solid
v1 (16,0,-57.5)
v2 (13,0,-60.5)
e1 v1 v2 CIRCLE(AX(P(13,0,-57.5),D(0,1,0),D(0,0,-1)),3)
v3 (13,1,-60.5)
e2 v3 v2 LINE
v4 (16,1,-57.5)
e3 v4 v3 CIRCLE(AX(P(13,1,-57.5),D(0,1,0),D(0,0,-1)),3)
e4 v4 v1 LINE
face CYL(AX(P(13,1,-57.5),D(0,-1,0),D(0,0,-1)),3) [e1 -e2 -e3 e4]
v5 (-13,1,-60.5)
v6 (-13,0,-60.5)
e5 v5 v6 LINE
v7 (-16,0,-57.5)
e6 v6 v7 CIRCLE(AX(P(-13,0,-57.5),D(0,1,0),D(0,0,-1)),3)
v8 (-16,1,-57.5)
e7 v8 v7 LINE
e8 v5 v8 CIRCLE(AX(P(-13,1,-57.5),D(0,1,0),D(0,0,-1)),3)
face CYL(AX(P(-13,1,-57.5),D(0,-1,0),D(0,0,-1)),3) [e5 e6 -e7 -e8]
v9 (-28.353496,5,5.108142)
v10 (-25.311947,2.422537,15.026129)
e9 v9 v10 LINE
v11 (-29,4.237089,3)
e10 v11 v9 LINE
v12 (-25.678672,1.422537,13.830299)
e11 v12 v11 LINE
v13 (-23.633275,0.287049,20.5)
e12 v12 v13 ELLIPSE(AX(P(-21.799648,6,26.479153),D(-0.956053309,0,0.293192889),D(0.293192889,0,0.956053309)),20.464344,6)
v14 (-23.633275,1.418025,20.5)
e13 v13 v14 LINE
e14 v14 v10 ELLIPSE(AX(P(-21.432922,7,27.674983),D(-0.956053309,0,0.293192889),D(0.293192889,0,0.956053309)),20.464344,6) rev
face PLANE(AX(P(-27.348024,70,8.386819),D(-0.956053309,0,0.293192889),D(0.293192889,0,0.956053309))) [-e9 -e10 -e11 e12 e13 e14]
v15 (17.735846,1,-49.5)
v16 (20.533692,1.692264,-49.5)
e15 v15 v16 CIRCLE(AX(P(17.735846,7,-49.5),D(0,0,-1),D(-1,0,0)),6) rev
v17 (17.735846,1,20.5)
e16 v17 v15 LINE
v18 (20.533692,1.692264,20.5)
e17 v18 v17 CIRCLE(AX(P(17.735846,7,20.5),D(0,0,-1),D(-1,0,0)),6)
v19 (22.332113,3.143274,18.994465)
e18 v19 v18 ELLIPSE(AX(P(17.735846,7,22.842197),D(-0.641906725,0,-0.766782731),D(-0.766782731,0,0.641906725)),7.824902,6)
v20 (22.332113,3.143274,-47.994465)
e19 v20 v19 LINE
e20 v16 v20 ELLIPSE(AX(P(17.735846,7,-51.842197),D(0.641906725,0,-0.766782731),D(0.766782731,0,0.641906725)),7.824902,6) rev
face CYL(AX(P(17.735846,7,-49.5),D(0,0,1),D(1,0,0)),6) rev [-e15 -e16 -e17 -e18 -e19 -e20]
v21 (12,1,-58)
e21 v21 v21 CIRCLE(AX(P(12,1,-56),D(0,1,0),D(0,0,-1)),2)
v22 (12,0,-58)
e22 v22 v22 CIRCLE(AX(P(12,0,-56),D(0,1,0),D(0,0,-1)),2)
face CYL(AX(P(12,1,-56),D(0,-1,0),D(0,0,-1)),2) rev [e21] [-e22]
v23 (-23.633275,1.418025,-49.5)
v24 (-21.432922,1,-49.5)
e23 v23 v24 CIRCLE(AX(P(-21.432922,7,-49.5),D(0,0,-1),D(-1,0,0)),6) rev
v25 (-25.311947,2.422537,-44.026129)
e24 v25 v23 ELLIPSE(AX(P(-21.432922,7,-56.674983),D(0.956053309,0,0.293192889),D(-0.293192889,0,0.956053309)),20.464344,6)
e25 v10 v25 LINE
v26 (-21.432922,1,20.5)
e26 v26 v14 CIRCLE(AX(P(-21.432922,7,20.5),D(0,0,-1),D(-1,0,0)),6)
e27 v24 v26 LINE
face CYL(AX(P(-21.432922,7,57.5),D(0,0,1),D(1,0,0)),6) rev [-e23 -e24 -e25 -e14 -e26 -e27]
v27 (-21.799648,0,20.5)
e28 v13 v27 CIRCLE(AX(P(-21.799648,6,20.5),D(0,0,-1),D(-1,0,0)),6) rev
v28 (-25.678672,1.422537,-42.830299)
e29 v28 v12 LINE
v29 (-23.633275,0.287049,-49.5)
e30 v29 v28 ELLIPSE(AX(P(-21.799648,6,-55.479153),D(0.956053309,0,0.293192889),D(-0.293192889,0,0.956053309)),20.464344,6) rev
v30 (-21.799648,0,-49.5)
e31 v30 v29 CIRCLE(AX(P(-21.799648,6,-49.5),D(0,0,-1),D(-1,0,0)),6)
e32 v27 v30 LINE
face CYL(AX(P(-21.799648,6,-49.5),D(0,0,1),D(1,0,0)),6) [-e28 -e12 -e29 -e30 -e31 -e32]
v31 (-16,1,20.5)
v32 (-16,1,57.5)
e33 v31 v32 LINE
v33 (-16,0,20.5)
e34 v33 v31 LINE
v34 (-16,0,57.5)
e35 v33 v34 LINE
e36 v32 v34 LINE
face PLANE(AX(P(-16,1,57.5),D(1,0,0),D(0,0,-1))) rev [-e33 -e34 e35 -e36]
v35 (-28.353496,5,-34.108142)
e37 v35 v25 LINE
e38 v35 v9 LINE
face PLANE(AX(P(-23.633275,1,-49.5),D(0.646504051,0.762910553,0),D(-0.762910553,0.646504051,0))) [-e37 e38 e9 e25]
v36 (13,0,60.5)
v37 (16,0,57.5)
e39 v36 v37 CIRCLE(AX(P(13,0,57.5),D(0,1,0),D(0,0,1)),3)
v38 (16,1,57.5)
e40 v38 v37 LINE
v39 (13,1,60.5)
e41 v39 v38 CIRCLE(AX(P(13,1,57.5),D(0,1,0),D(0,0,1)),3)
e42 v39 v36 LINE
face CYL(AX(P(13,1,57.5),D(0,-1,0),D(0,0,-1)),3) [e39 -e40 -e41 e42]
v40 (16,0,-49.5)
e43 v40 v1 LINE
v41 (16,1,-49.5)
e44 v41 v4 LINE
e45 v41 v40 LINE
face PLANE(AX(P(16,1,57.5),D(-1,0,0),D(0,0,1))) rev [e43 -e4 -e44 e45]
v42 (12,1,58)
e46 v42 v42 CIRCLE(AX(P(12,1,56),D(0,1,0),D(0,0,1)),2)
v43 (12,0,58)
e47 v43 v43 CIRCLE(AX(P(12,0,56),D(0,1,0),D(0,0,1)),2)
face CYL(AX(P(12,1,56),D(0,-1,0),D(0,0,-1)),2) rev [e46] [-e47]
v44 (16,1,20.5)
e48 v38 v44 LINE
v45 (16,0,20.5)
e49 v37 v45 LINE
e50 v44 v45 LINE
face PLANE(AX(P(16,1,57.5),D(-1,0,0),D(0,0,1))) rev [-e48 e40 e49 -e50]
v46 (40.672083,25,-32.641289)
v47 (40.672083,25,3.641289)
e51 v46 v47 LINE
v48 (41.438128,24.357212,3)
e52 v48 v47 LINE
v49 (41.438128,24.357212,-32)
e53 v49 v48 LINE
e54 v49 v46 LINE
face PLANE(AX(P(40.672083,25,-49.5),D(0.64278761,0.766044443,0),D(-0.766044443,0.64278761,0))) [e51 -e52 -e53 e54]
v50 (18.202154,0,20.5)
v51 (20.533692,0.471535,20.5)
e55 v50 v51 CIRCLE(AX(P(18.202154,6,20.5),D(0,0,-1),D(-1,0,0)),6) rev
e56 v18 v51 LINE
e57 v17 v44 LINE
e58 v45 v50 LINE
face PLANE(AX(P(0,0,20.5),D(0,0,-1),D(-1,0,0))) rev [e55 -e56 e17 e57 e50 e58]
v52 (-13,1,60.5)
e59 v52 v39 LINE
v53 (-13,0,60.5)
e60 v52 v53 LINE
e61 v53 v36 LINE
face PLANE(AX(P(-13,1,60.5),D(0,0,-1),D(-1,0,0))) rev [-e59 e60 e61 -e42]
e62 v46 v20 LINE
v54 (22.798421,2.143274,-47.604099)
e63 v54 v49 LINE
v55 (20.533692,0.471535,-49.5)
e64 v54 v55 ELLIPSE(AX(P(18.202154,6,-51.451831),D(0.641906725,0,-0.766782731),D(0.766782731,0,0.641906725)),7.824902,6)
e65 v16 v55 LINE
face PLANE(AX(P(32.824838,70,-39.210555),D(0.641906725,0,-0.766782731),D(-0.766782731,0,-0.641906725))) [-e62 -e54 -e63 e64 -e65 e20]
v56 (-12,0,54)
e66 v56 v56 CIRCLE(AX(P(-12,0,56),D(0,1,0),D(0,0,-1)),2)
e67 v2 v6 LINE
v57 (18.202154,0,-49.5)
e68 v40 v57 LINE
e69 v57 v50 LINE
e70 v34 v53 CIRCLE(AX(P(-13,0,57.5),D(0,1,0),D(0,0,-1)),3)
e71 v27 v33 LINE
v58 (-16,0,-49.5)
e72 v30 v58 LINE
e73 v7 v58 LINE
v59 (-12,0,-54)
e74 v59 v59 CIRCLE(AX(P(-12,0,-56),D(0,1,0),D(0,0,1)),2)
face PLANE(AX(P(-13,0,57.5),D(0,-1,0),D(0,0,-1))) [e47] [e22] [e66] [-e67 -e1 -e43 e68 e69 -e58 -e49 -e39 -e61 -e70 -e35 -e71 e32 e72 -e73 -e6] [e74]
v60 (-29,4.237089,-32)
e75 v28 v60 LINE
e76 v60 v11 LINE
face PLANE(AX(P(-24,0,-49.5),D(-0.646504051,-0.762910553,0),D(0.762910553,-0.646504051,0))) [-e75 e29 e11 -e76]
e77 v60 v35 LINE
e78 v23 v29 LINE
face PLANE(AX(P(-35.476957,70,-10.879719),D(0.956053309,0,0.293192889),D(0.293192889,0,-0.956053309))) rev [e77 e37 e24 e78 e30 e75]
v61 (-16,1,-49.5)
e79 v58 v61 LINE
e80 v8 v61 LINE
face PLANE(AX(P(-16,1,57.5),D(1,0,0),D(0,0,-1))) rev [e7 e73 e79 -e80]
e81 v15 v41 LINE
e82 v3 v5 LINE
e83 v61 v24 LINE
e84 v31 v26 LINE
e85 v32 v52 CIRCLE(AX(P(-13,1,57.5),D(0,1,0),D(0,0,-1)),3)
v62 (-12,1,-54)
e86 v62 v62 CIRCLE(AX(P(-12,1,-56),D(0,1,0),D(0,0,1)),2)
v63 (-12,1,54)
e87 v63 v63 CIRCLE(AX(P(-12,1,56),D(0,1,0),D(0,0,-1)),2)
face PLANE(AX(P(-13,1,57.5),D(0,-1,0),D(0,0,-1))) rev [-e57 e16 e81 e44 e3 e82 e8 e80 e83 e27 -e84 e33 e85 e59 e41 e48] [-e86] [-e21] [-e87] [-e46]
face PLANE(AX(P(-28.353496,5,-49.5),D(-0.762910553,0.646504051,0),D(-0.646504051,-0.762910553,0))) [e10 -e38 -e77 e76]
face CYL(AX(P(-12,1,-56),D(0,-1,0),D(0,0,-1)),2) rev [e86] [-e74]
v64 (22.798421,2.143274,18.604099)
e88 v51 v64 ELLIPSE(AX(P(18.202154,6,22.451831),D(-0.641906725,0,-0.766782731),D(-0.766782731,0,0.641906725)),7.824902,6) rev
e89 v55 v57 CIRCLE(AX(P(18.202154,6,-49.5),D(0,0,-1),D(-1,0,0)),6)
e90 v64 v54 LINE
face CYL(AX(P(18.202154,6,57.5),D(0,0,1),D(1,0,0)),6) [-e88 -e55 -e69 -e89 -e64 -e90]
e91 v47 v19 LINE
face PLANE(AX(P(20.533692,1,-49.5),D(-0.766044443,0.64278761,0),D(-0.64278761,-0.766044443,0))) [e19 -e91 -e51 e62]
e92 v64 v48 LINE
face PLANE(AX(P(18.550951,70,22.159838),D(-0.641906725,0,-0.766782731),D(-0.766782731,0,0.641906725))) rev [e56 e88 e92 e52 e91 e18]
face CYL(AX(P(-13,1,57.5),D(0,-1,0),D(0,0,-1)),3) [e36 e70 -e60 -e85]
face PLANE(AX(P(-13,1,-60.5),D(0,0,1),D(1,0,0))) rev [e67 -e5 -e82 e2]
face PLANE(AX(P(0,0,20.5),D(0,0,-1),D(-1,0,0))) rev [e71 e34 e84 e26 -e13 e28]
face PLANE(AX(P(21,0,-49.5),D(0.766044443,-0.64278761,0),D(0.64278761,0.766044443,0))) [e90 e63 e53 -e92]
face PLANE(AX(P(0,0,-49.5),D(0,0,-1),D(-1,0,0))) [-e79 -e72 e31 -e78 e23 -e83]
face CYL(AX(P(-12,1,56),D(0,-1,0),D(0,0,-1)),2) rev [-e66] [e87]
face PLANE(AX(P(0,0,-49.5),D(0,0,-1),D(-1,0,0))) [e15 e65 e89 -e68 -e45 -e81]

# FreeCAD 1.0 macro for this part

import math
import FreeCAD as App
import Part
import Sketcher
Q = App.Units.Quantity


def edges_at(feature, points):
    """Names of the edges that pass closest to the given points."""
    edges = feature.Shape.Edges
    near = lambda p: min(range(len(edges)), key=lambda i: edges[i].distToShape(Part.Vertex(*p))[0])
    return sorted({f"Edge{near(p) + 1}" for p in points})


def add_polygon(sketch, points):
    """Adds a closed chain of lines whose ends are joined by coincident constraints."""
    first, n = sketch.GeometryCount, len(points)
    for a, b in zip(points, points[1:] + points[:1]):
        sketch.addGeometry(Part.LineSegment(App.Vector(*a, 0), App.Vector(*b, 0)), False)
    for i in range(n):
        sketch.addConstraint(Sketcher.Constraint("Coincident", first + i, 2, first + (i + 1) % n, 1))

doc = App.newDocument("Part")
params = doc.addObject("Spreadsheet::Sheet", "Params")
for row, (alias, value) in enumerate([
    ("sketch1_diameter", "4 mm"),
    ("sketch1_radius", "3 mm"),
    ("sketch1_width", "26 mm"),
    ("sketch1_height", "115 mm"),
    ("pad1_length", "1 mm"),
    ("sketch2_width", "45 mm"),
    ("sketch2_length", "1 mm"),
    ("pad2_length", "70 mm"),
    ("sketch3_height", "17.5 mm"),
    ("pocket1_length", "70 mm"),
    ("fillet_radius", "6 mm"),
    ("fillet2_radius", "6 mm"),
], start=1):
    params.set(f"A{row}", alias)
    params.set(f"B{row}", "=" + value)
    params.setAlias(f"B{row}", alias)

body = doc.addObject("PartDesign::Body", "Body")

# Sketch on XZ plane
sketch1 = body.newObject("Sketcher::SketchObject", "Sketch")
sketch1.AttachmentSupport = (doc.getObject("XZ_Plane"), [""])
sketch1.MapMode = "FlatFace"
sketch1.addGeometry([
    Part.LineSegment(App.Vector(-13, 60.5, 0), App.Vector(13, 60.5, 0)),  # 0
    Part.ArcOfCircle(Part.Circle(App.Vector(13, 57.5, 0), App.Vector(0, 0, 1), 3), math.radians(0), math.radians(90)),  # 1
    Part.LineSegment(App.Vector(16, 57.5, 0), App.Vector(16, -57.5, 0)),  # 2
    Part.ArcOfCircle(Part.Circle(App.Vector(13, -57.5, 0), App.Vector(0, 0, 1), 3), math.radians(-90), math.radians(0)),  # 3
    Part.LineSegment(App.Vector(13, -60.5, 0), App.Vector(-13, -60.5, 0)),  # 4
    Part.ArcOfCircle(Part.Circle(App.Vector(-13, -57.5, 0), App.Vector(0, 0, 1), 3), math.radians(180), math.radians(270)),  # 5
    Part.LineSegment(App.Vector(-16, -57.5, 0), App.Vector(-16, 57.5, 0)),  # 6
    Part.ArcOfCircle(Part.Circle(App.Vector(-13, 57.5, 0), App.Vector(0, 0, 1), 3), math.radians(90), math.radians(180)),  # 7
    Part.Circle(App.Vector(-12, 56, 0), App.Vector(0, 0, 1), 2),  # 8
    Part.Circle(App.Vector(12, 56, 0), App.Vector(0, 0, 1), 2),  # 9
    Part.Circle(App.Vector(-12, -56, 0), App.Vector(0, 0, 1), 2),  # 10
    Part.Circle(App.Vector(12, -56, 0), App.Vector(0, 0, 1), 2),  # 11
], False)
sketch1.addConstraint([
    Sketcher.Constraint("Tangent", 0, 2, 1, 2),
    Sketcher.Constraint("Tangent", 1, 1, 2, 1),
    Sketcher.Constraint("Tangent", 2, 2, 3, 2),
    Sketcher.Constraint("Tangent", 3, 1, 4, 1),
    Sketcher.Constraint("Tangent", 4, 2, 5, 2),
    Sketcher.Constraint("Tangent", 5, 1, 6, 1),
    Sketcher.Constraint("Tangent", 6, 2, 7, 2),
    Sketcher.Constraint("Tangent", 7, 1, 0, 1),
    Sketcher.Constraint("Horizontal", 0),
    Sketcher.Constraint("Vertical", 2),
    Sketcher.Constraint("Horizontal", 4),
    Sketcher.Constraint("Vertical", 6),
    Sketcher.Constraint("Equal", 1, 3),
    Sketcher.Constraint("Equal", 3, 5),
    Sketcher.Constraint("Equal", 5, 7),
    Sketcher.Constraint("Equal", 8, 9),
    Sketcher.Constraint("Equal", 9, 10),
    Sketcher.Constraint("Equal", 10, 11),
    Sketcher.Constraint("Symmetric", 1, 3, 5, 3, -1, 1),
    Sketcher.Constraint("Symmetric", 9, 3, 10, 3, -1, 1),
    Sketcher.Constraint("Symmetric", 8, 3, 11, 3, -1, 1),
    Sketcher.Constraint("Symmetric", 8, 3, 9, 3, -2),
    Sketcher.Constraint("Diameter", 8, Q("4 mm")),
    Sketcher.Constraint("Radius", 1, Q("3 mm")),
    Sketcher.Constraint("DistanceX", 0, 1, 0, 2, Q("26 mm")),
    Sketcher.Constraint("DistanceY", 2, 2, 2, 1, Q("115 mm")),
    Sketcher.Constraint("DistanceX", 8, 3, -1, 1, Q("12 mm")),
    Sketcher.Constraint("DistanceY", -1, 1, 8, 3, Q("56 mm")),
])
sketch1.setExpression("Constraints[22]", "Params.sketch1_diameter")
sketch1.setExpression("Constraints[23]", "Params.sketch1_radius")
sketch1.setExpression("Constraints[24]", "Params.sketch1_width")
sketch1.setExpression("Constraints[25]", "Params.sketch1_height")
pad1 = body.newObject("PartDesign::Pad", "Pad")
pad1.Profile = sketch1
pad1.setExpression("Length", "Params.pad1_length")
pad1.Reversed = True

# Sketch on XY plane
sketch2 = body.newObject("Sketcher::SketchObject", "Sketch001")
sketch2.AttachmentSupport = (doc.getObject("XY_Plane"), [""])
sketch2.MapMode = "FlatFace"
sketch2.AttachmentOffset = App.Placement(App.Vector(0, 0, 20.5), App.Rotation())
add_polygon(sketch2, [(20.533692, 1), (-23.633275, 1), (-28.353496, 5), (-29, 4.237089), (-24, 0), (21, 0), (41.438128, 24.357212), (40.672083, 25)])  # lines 0-7
sketch2.addConstraint([
    Sketcher.Constraint("Horizontal", 0),
    Sketcher.Constraint("Horizontal", 4),
    Sketcher.Constraint("PointOnObject", 3, 2, -1),
    Sketcher.Constraint("Perpendicular", 1, 2),
    Sketcher.Constraint("Perpendicular", 2, 3),
    Sketcher.Constraint("Perpendicular", 5, 6),
    Sketcher.Constraint("Perpendicular", 6, 7),
    Sketcher.Constraint("Equal", 2, 6),
    Sketcher.Constraint("DistanceX", 4, 1, 4, 2, Q("45 mm")),
    Sketcher.Constraint("Angle", 5, Q("50 deg")),
    Sketcher.Constraint("Distance", 2, Q("1 mm")),
    Sketcher.Constraint("DistanceY", -1, 1, 0, 2, Q("1 mm")),
    Sketcher.Constraint("DistanceY", -1, 1, 1, 2, Q("5 mm")),
    Sketcher.Constraint("DistanceX", 2, 2, -1, 1, Q("29 mm")),
    Sketcher.Constraint("DistanceX", 3, 2, -1, 1, Q("24 mm")),
    Sketcher.Constraint("DistanceY", -1, 1, 6, 2, Q("25 mm")),
])
sketch2.setExpression("Constraints[16]", "Params.sketch2_width")
sketch2.setExpression("Constraints[18]", "Params.sketch2_length")
pad2 = body.newObject("PartDesign::Pad", "Pad001")
pad2.Profile = sketch2
pad2.setExpression("Length", "Params.pad2_length")
pad2.Reversed = True

# Sketch on XZ plane
sketch3 = body.newObject("Sketcher::SketchObject", "Sketch002")
sketch3.AttachmentSupport = (doc.getObject("XZ_Plane"), [""])
sketch3.MapMode = "FlatFace"
add_polygon(sketch3, [(20.533692, 20.5), (41.438128, 3), (41.438128, 20.5)])  # lines 0-2
add_polygon(sketch3, [(41.438128, -32), (20.533692, -49.5), (41.438128, -49.5)])  # lines 3-5
add_polygon(sketch3, [(-23.633275, -49.5), (-29, -32), (-29, -49.5)])  # lines 6-8
add_polygon(sketch3, [(-23.633275, 20.5), (-29, 20.5), (-29, 3)])  # lines 9-11
sketch3.addConstraint([
    Sketcher.Constraint("Vertical", 1),
    Sketcher.Constraint("Horizontal", 2),
    Sketcher.Constraint("Horizontal", 4),
    Sketcher.Constraint("Vertical", 5),
    Sketcher.Constraint("Vertical", 7),
    Sketcher.Constraint("Horizontal", 8),
    Sketcher.Constraint("Horizontal", 9),
    Sketcher.Constraint("Vertical", 10),
    Sketcher.Constraint("Horizontal", 5, 2, 6, 2),
    Sketcher.Constraint("Horizontal", 4, 2, 7, 2),
    Sketcher.Constraint("Horizontal", 2, 2, 9, 2),
    Sketcher.Constraint("Horizontal", 0, 2, 10, 2),
    Sketcher.Constraint("Vertical", 2, 2, 3, 2),
    Sketcher.Constraint("Vertical", 1, 2, 4, 2),
    Sketcher.Constraint("Vertical", 7, 2, 9, 2),
    Sketcher.Constraint("Vertical", 8, 2, 11, 2),
    Sketcher.Constraint("Equal", 1, 5),
    Sketcher.Constraint("DistanceY", 1, 1, 1, 2, Q("17.5 mm")),
    Sketcher.Constraint("DistanceY", -1, 1, 0, 2, Q("3 mm")),
    Sketcher.Constraint("DistanceY", 5, 2, -1, 1, Q("32 mm")),
    Sketcher.Constraint("DistanceX", 6, 2, -1, 1, Q("29 mm")),
    Sketcher.Constraint("Distance", 6, Q("18.304419 mm")),
    Sketcher.Constraint("DistanceX", 2, 2, 2, 1, Q("20.904436 mm")),
    Sketcher.Constraint("DistanceX", -1, 1, 0, 2, Q("41.438128 mm")),
])
sketch3.setExpression("Constraints[29]", "Params.sketch3_height")
pocket1 = body.newObject("PartDesign::Pocket", "Pocket")
pocket1.Profile = sketch3
pocket1.setExpression("Length", "Params.pocket1_length")
doc.recompute()

fillet = body.newObject("PartDesign::Fillet", "Fillet")
fillet.Base = (pocket1, edges_at(pocket1, [(-23.633, 1, -14.5), (20.534, 1, -14.5)]))
fillet.setExpression("Radius", "Params.fillet_radius")
doc.recompute()

fillet2 = body.newObject("PartDesign::Fillet", "Fillet001")
fillet2.Base = (fillet, edges_at(fillet, [(-24, 0, -14.5), (21, 0, -14.5)]))
fillet2.setExpression("Radius", "Params.fillet2_radius")

doc.recompute()
